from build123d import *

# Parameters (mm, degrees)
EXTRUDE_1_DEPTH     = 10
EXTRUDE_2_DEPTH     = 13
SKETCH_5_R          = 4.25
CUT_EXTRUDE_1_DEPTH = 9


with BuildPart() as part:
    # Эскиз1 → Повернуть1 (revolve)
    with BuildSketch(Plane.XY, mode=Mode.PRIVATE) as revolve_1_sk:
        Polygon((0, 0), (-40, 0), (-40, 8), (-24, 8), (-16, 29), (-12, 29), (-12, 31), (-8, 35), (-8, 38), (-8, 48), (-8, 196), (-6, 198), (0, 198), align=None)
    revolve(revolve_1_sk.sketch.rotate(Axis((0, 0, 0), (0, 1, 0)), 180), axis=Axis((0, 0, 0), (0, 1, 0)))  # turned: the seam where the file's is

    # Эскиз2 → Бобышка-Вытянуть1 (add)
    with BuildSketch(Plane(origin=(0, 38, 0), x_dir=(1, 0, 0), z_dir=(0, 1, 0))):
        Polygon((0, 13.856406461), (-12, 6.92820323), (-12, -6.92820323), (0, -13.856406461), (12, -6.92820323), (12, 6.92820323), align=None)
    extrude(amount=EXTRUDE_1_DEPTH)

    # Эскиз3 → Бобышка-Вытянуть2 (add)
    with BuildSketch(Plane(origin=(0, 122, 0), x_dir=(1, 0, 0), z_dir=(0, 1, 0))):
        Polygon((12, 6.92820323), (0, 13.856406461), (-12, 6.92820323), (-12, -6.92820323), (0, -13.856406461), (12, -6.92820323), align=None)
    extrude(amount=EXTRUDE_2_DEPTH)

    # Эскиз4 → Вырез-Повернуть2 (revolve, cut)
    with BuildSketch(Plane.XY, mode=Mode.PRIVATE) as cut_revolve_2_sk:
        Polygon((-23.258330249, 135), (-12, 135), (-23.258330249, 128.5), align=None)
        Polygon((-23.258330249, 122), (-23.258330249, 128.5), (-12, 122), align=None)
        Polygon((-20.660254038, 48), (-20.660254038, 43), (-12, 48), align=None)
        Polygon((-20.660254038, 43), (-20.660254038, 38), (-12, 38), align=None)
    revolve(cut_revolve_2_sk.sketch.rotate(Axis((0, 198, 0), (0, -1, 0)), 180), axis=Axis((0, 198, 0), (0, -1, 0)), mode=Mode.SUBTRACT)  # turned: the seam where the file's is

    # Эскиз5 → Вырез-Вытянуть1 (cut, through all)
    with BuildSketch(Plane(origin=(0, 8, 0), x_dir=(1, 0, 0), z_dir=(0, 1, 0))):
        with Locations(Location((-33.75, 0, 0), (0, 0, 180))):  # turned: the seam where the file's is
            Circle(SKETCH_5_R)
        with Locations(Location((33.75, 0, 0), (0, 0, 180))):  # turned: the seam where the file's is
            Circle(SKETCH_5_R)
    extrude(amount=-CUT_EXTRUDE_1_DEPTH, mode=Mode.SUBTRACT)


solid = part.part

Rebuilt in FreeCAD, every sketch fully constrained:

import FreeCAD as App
import Part
import Sketcher
from FreeCAD import Vector
Q = App.Units.Quantity

doc = App.newDocument("Part")
body = doc.addObject("PartDesign::Body", "Body")

# Sketch on XY plane
sketch1 = body.newObject("Sketcher::SketchObject", "Sketch")
sketch1.AttachmentSupport = (doc.getObject("XY_Plane"), [""])
sketch1.MapMode = "FlatFace"
sketch1.addGeometry([
    Part.LineSegment(Vector(-40, 0, 0), Vector(0, 0, 0)),  # 0
    Part.LineSegment(Vector(0, 0, 0), Vector(0, 198, 0)),  # 1
    Part.LineSegment(Vector(0, 198, 0), Vector(-6, 198, 0)),  # 2
    Part.LineSegment(Vector(-6, 198, 0), Vector(-8, 196, 0)),  # 3
    Part.LineSegment(Vector(-8, 196, 0), Vector(-8, 35, 0)),  # 4
    Part.LineSegment(Vector(-8, 35, 0), Vector(-12, 31, 0)),  # 5
    Part.LineSegment(Vector(-12, 31, 0), Vector(-12, 29, 0)),  # 6
    Part.LineSegment(Vector(-12, 29, 0), Vector(-16, 29, 0)),  # 7
    Part.LineSegment(Vector(-16, 29, 0), Vector(-24, 8, 0)),  # 8
    Part.LineSegment(Vector(-24, 8, 0), Vector(-40, 8, 0)),  # 9
    Part.LineSegment(Vector(-40, 8, 0), Vector(-40, 0, 0)),  # 10
], False)
sketch1.addConstraint([
    Sketcher.Constraint("Coincident", 0, 2, 1, 1),
    Sketcher.Constraint("Coincident", 1, 2, 2, 1),
    Sketcher.Constraint("Coincident", 2, 2, 3, 1),
    Sketcher.Constraint("Coincident", 3, 2, 4, 1),
    Sketcher.Constraint("Coincident", 4, 2, 5, 1),
    Sketcher.Constraint("Coincident", 5, 2, 6, 1),
    Sketcher.Constraint("Coincident", 6, 2, 7, 1),
    Sketcher.Constraint("Coincident", 7, 2, 8, 1),
    Sketcher.Constraint("Coincident", 8, 2, 9, 1),
    Sketcher.Constraint("Coincident", 9, 2, 10, 1),
    Sketcher.Constraint("Coincident", 10, 2, 0, 1),
    Sketcher.Constraint("Horizontal", 0),
    Sketcher.Constraint("Vertical", 1),
    Sketcher.Constraint("Horizontal", 2),
    Sketcher.Constraint("Vertical", 4),
    Sketcher.Constraint("Vertical", 6),
    Sketcher.Constraint("Horizontal", 7),
    Sketcher.Constraint("Horizontal", 9),
    Sketcher.Constraint("Vertical", 10),
    Sketcher.Constraint("Coincident", 0, 2, -1, 1),
    Sketcher.Constraint("Parallel", 3, 5),
    Sketcher.Constraint("DistanceX", 0, 1, 0, 2, 40.0),
    Sketcher.Constraint("DistanceX", 2, 2, 2, 1, 6.0),
    Sketcher.Constraint("DistanceX", 7, 2, 7, 1, 4.0),
    Sketcher.Constraint("DistanceX", 9, 2, 9, 1, 16.0),
    Sketcher.Constraint("DistanceY", 1, 1, 1, 2, 198.0),
    Sketcher.Constraint("DistanceY", 4, 2, 4, 1, 161.0),
    Sketcher.Constraint("DistanceY", 6, 2, 6, 1, 2.0),
    Sketcher.Constraint("DistanceY", 10, 2, 10, 1, 8.0),
    Sketcher.Constraint("Angle", 3, Q("-135 deg")),
    Sketcher.Constraint("DistanceX", 3, 2, -1, 1, 8.0),
    Sketcher.Constraint("DistanceX", 5, 2, -1, 1, 12.0),
])
revolution = body.newObject("PartDesign::Revolution", "Revolution")
revolution.Profile = sketch1
revolution.ReferenceAxis = (sketch1, ["V_Axis"])
revolution.Angle = 360

# Sketch on XZ plane
sketch2 = body.newObject("Sketcher::SketchObject", "Sketch001")
sketch2.AttachmentSupport = (doc.getObject("XZ_Plane"), [""])
sketch2.MapMode = "FlatFace"
sketch2.AttachmentOffset = App.Placement(Vector(0, 0, -38), App.Rotation())
sketch2.addGeometry([
    Part.LineSegment(Vector(0, -13.856406, 0), Vector(-12, -6.928203, 0)),  # 0
    Part.LineSegment(Vector(-12, -6.928203, 0), Vector(-12, 6.928203, 0)),  # 1
    Part.LineSegment(Vector(-12, 6.928203, 0), Vector(0, 13.856406, 0)),  # 2
    Part.LineSegment(Vector(0, 13.856406, 0), Vector(12, 6.928203, 0)),  # 3
    Part.LineSegment(Vector(12, 6.928203, 0), Vector(12, -6.928203, 0)),  # 4
    Part.LineSegment(Vector(12, -6.928203, 0), Vector(0, -13.856406, 0)),  # 5
], False)
sketch2.addConstraint([
    Sketcher.Constraint("Coincident", 0, 2, 1, 1),
    Sketcher.Constraint("Coincident", 1, 2, 2, 1),
    Sketcher.Constraint("Coincident", 2, 2, 3, 1),
    Sketcher.Constraint("Coincident", 3, 2, 4, 1),
    Sketcher.Constraint("Coincident", 4, 2, 5, 1),
    Sketcher.Constraint("Coincident", 5, 2, 0, 1),
    Sketcher.Constraint("Vertical", 1),
    Sketcher.Constraint("Vertical", 4),
    Sketcher.Constraint("Symmetric", 0, 2, 3, 2, -1, 1),
    Sketcher.Constraint("Symmetric", 2, 2, 5, 2, -1, 1),
    Sketcher.Constraint("PointOnObject", 2, 2, -2),
    Sketcher.Constraint("Parallel", 2, 5),
    Sketcher.Constraint("Horizontal", 1, 2, 3, 2),
    Sketcher.Constraint("Angle", 0, Q("150 deg")),
    Sketcher.Constraint("DistanceX", 0, 2, -1, 1, 12.0),
    Sketcher.Constraint("DistanceY", 1, 1, 1, 2, 13.856406),
])
pad1 = body.newObject("PartDesign::Pad", "Pad")
pad1.Profile = sketch2
pad1.Length = 10
pad1.Reversed = True

# Sketch on XZ plane
sketch3 = body.newObject("Sketcher::SketchObject", "Sketch002")
sketch3.AttachmentSupport = (doc.getObject("XZ_Plane"), [""])
sketch3.MapMode = "FlatFace"
sketch3.AttachmentOffset = App.Placement(Vector(0, 0, -122), App.Rotation())
sketch3.addGeometry([
    Part.LineSegment(Vector(12, -6.928203, 0), Vector(0, -13.856406, 0)),  # 0
    Part.LineSegment(Vector(0, -13.856406, 0), Vector(-12, -6.928203, 0)),  # 1
    Part.LineSegment(Vector(-12, -6.928203, 0), Vector(-12, 6.928203, 0)),  # 2
    Part.LineSegment(Vector(-12, 6.928203, 0), Vector(0, 13.856406, 0)),  # 3
    Part.LineSegment(Vector(0, 13.856406, 0), Vector(12, 6.928203, 0)),  # 4
    Part.LineSegment(Vector(12, 6.928203, 0), Vector(12, -6.928203, 0)),  # 5
], False)
sketch3.addConstraint([
    Sketcher.Constraint("Coincident", 0, 2, 1, 1),
    Sketcher.Constraint("Coincident", 1, 2, 2, 1),
    Sketcher.Constraint("Coincident", 2, 2, 3, 1),
    Sketcher.Constraint("Coincident", 3, 2, 4, 1),
    Sketcher.Constraint("Coincident", 4, 2, 5, 1),
    Sketcher.Constraint("Coincident", 5, 2, 0, 1),
    Sketcher.Constraint("Vertical", 2),
    Sketcher.Constraint("Vertical", 5),
    Sketcher.Constraint("Symmetric", 0, 2, 3, 2, -1, 1),
    Sketcher.Constraint("Symmetric", 1, 2, 4, 2, -1, 1),
    Sketcher.Constraint("PointOnObject", 0, 2, -2),
    Sketcher.Constraint("Parallel", 0, 3),
    Sketcher.Constraint("Horizontal", 2, 2, 4, 2),
    Sketcher.Constraint("Angle", 0, Q("-150 deg")),
    Sketcher.Constraint("DistanceX", 1, 2, -1, 1, 12.0),
    Sketcher.Constraint("DistanceY", 2, 1, 2, 2, 13.856406),
])
pad2 = body.newObject("PartDesign::Pad", "Pad001")
pad2.Profile = sketch3
pad2.Length = 13
pad2.Reversed = True

# Sketch on XY plane
sketch4 = body.newObject("Sketcher::SketchObject", "Sketch003")
sketch4.AttachmentSupport = (doc.getObject("XY_Plane"), [""])
sketch4.MapMode = "FlatFace"
sketch4.addGeometry([
    Part.LineSegment(Vector(-12, 135, 0), Vector(-23.25833, 135, 0)),  # 0
    Part.LineSegment(Vector(-23.25833, 135, 0), Vector(-23.25833, 128.5, 0)),  # 1
    Part.LineSegment(Vector(-23.25833, 128.5, 0), Vector(-12, 135, 0)),  # 2
    Part.LineSegment(Vector(-23.25833, 128.5, 0), Vector(-23.25833, 122, 0)),  # 3
    Part.LineSegment(Vector(-23.25833, 122, 0), Vector(-12, 122, 0)),  # 4
    Part.LineSegment(Vector(-12, 122, 0), Vector(-23.25833, 128.5, 0)),  # 5
    Part.LineSegment(Vector(-20.660254, 48, 0), Vector(-20.660254, 43, 0)),  # 6
    Part.LineSegment(Vector(-20.660254, 43, 0), Vector(-12, 48, 0)),  # 7
    Part.LineSegment(Vector(-12, 48, 0), Vector(-20.660254, 48, 0)),  # 8
    Part.LineSegment(Vector(-20.660254, 43, 0), Vector(-20.660254, 38, 0)),  # 9
    Part.LineSegment(Vector(-20.660254, 38, 0), Vector(-12, 38, 0)),  # 10
    Part.LineSegment(Vector(-12, 38, 0), Vector(-20.660254, 43, 0)),  # 11
], False)
sketch4.addConstraint([
    Sketcher.Constraint("Coincident", 0, 2, 1, 1),
    Sketcher.Constraint("Coincident", 1, 2, 2, 1),
    Sketcher.Constraint("Coincident", 2, 2, 0, 1),
    Sketcher.Constraint("Coincident", 3, 2, 4, 1),
    Sketcher.Constraint("Coincident", 4, 2, 5, 1),
    Sketcher.Constraint("Coincident", 5, 2, 3, 1),
    Sketcher.Constraint("Coincident", 6, 2, 7, 1),
    Sketcher.Constraint("Coincident", 7, 2, 8, 1),
    Sketcher.Constraint("Coincident", 8, 2, 6, 1),
    Sketcher.Constraint("Coincident", 9, 2, 10, 1),
    Sketcher.Constraint("Coincident", 10, 2, 11, 1),
    Sketcher.Constraint("Coincident", 11, 2, 9, 1),
    Sketcher.Constraint("Horizontal", 0),
    Sketcher.Constraint("Vertical", 1),
    Sketcher.Constraint("Vertical", 3),
    Sketcher.Constraint("Horizontal", 4),
    Sketcher.Constraint("Vertical", 6),
    Sketcher.Constraint("Horizontal", 8),
    Sketcher.Constraint("Vertical", 9),
    Sketcher.Constraint("Horizontal", 10),
    Sketcher.Constraint("Coincident", 5, 2, 1, 2),
    Sketcher.Constraint("Coincident", 11, 2, 6, 2),
    Sketcher.Constraint("Parallel", 2, 7),
    Sketcher.Constraint("Parallel", 5, 11),
    Sketcher.Constraint("Vertical", 2, 2, 4, 2),
    Sketcher.Constraint("Vertical", 4, 2, 7, 2),
    Sketcher.Constraint("Vertical", 7, 2, 10, 2),
    Sketcher.Constraint("Equal", 1, 3),
    Sketcher.Constraint("DistanceY", 6, 2, 6, 1, 5.0),
    Sketcher.Constraint("Angle", 2, Q("30 deg")),
    Sketcher.Constraint("Distance", 2, 13.0),
    Sketcher.Constraint("DistanceY", -1, 1, 0, 2, 135.0),
    Sketcher.Constraint("DistanceX", 2, 2, -1, 1, 12.0),
    Sketcher.Constraint("DistanceY", -1, 1, 6, 2, 43.0),
])
groove = body.newObject("PartDesign::Groove", "Groove")
groove.Profile = sketch4
groove.ReferenceAxis = (sketch4, ["V_Axis"])
groove.Angle = 360

# Sketch on XZ plane
sketch5 = body.newObject("Sketcher::SketchObject", "Sketch004")
sketch5.AttachmentSupport = (doc.getObject("XZ_Plane"), [""])
sketch5.MapMode = "FlatFace"
sketch5.AttachmentOffset = App.Placement(Vector(0, 0, -8), App.Rotation())
sketch5.addGeometry([
    Part.Circle(Vector(-33.75, 0, 0), Vector(0, 0, 1), 4.25),
    Part.Circle(Vector(33.75, 0, 0), Vector(0, 0, 1), 4.25),
], False)
sketch5.addConstraint([
    Sketcher.Constraint("Equal", 0, 1),
    Sketcher.Constraint("Symmetric", 0, 3, 1, 3, -1, 1),
    Sketcher.Constraint("PointOnObject", 0, 3, -1),
    Sketcher.Constraint("Diameter", 0, 8.5),
    Sketcher.Constraint("DistanceX", 0, 3, 1, 3, 67.5),
])
pocket1 = body.newObject("PartDesign::Pocket", "Pocket")
pocket1.Profile = sketch5
pocket1.Type = "ThroughAll"
pocket1.Reversed = True

doc.recompute()
